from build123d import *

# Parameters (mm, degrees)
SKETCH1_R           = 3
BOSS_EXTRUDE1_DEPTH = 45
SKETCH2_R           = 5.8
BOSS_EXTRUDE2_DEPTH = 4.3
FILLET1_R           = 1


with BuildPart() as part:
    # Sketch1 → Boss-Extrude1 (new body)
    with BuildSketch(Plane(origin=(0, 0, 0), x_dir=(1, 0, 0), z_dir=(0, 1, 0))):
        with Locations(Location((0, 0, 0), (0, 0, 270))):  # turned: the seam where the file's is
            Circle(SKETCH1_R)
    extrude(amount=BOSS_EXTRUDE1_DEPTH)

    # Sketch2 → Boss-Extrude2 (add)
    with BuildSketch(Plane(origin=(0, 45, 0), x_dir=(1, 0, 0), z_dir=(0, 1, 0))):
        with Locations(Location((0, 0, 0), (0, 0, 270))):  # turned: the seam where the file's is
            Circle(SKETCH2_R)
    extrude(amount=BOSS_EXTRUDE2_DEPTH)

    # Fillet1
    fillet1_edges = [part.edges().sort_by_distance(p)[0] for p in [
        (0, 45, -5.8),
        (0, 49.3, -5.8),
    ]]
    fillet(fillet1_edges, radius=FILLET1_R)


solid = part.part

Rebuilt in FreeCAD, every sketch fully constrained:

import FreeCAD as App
import Part
import Sketcher


def edges_at(feature, points):
    """Names of the edges that pass closest to the given points."""
    edges = feature.Shape.Edges
    near = lambda p: min(range(len(edges)), key=lambda i: edges[i].distToShape(Part.Vertex(*p))[0])
    return sorted({f"Edge{near(p) + 1}" for p in points})

doc = App.newDocument("Part")
body = doc.addObject("PartDesign::Body", "Body")

sketch1 = body.newObject("Sketcher::SketchObject", "Sketch")
sketch1.AttachmentSupport = (doc.getObject("XZ_Plane"), [""])
sketch1.MapMode = "FlatFace"
sketch1.addGeometry(Part.Circle(App.Vector(0, 0, 0), App.Vector(0, 0, 1), 3), False)
sketch1.addConstraint(Sketcher.Constraint("Coincident", 0, 3, -1, 1))
sketch1.addConstraint(Sketcher.Constraint("Diameter", 0, 6.0))
pad1 = body.newObject("PartDesign::Pad", "Pad")
pad1.Profile = sketch1
pad1.Length = 45
pad1.Reversed = True

sketch2 = body.newObject("Sketcher::SketchObject", "Sketch001")
sketch2.AttachmentSupport = (doc.getObject("XZ_Plane"), [""])
sketch2.MapMode = "FlatFace"
sketch2.AttachmentOffset = App.Placement(App.Vector(0, 0, -45), App.Rotation())
sketch2.addGeometry(Part.Circle(App.Vector(0, 0, 0), App.Vector(0, 0, 1), 6), False)
sketch2.addConstraint(Sketcher.Constraint("Coincident", 0, 3, -1, 1))
sketch2.addConstraint(Sketcher.Constraint("Diameter", 0, 11.6))
pad2 = body.newObject("PartDesign::Pad", "Pad001")
pad2.Profile = sketch2
pad2.Length = 4.3
pad2.Reversed = True
doc.recompute()

fillet = body.newObject("PartDesign::Fillet", "Fillet")
fillet.Base = (pad2, edges_at(pad2, [(0, 45, -5.8), (0, 49.3, -5.8)]))
fillet.Radius = 1

doc.recompute()
